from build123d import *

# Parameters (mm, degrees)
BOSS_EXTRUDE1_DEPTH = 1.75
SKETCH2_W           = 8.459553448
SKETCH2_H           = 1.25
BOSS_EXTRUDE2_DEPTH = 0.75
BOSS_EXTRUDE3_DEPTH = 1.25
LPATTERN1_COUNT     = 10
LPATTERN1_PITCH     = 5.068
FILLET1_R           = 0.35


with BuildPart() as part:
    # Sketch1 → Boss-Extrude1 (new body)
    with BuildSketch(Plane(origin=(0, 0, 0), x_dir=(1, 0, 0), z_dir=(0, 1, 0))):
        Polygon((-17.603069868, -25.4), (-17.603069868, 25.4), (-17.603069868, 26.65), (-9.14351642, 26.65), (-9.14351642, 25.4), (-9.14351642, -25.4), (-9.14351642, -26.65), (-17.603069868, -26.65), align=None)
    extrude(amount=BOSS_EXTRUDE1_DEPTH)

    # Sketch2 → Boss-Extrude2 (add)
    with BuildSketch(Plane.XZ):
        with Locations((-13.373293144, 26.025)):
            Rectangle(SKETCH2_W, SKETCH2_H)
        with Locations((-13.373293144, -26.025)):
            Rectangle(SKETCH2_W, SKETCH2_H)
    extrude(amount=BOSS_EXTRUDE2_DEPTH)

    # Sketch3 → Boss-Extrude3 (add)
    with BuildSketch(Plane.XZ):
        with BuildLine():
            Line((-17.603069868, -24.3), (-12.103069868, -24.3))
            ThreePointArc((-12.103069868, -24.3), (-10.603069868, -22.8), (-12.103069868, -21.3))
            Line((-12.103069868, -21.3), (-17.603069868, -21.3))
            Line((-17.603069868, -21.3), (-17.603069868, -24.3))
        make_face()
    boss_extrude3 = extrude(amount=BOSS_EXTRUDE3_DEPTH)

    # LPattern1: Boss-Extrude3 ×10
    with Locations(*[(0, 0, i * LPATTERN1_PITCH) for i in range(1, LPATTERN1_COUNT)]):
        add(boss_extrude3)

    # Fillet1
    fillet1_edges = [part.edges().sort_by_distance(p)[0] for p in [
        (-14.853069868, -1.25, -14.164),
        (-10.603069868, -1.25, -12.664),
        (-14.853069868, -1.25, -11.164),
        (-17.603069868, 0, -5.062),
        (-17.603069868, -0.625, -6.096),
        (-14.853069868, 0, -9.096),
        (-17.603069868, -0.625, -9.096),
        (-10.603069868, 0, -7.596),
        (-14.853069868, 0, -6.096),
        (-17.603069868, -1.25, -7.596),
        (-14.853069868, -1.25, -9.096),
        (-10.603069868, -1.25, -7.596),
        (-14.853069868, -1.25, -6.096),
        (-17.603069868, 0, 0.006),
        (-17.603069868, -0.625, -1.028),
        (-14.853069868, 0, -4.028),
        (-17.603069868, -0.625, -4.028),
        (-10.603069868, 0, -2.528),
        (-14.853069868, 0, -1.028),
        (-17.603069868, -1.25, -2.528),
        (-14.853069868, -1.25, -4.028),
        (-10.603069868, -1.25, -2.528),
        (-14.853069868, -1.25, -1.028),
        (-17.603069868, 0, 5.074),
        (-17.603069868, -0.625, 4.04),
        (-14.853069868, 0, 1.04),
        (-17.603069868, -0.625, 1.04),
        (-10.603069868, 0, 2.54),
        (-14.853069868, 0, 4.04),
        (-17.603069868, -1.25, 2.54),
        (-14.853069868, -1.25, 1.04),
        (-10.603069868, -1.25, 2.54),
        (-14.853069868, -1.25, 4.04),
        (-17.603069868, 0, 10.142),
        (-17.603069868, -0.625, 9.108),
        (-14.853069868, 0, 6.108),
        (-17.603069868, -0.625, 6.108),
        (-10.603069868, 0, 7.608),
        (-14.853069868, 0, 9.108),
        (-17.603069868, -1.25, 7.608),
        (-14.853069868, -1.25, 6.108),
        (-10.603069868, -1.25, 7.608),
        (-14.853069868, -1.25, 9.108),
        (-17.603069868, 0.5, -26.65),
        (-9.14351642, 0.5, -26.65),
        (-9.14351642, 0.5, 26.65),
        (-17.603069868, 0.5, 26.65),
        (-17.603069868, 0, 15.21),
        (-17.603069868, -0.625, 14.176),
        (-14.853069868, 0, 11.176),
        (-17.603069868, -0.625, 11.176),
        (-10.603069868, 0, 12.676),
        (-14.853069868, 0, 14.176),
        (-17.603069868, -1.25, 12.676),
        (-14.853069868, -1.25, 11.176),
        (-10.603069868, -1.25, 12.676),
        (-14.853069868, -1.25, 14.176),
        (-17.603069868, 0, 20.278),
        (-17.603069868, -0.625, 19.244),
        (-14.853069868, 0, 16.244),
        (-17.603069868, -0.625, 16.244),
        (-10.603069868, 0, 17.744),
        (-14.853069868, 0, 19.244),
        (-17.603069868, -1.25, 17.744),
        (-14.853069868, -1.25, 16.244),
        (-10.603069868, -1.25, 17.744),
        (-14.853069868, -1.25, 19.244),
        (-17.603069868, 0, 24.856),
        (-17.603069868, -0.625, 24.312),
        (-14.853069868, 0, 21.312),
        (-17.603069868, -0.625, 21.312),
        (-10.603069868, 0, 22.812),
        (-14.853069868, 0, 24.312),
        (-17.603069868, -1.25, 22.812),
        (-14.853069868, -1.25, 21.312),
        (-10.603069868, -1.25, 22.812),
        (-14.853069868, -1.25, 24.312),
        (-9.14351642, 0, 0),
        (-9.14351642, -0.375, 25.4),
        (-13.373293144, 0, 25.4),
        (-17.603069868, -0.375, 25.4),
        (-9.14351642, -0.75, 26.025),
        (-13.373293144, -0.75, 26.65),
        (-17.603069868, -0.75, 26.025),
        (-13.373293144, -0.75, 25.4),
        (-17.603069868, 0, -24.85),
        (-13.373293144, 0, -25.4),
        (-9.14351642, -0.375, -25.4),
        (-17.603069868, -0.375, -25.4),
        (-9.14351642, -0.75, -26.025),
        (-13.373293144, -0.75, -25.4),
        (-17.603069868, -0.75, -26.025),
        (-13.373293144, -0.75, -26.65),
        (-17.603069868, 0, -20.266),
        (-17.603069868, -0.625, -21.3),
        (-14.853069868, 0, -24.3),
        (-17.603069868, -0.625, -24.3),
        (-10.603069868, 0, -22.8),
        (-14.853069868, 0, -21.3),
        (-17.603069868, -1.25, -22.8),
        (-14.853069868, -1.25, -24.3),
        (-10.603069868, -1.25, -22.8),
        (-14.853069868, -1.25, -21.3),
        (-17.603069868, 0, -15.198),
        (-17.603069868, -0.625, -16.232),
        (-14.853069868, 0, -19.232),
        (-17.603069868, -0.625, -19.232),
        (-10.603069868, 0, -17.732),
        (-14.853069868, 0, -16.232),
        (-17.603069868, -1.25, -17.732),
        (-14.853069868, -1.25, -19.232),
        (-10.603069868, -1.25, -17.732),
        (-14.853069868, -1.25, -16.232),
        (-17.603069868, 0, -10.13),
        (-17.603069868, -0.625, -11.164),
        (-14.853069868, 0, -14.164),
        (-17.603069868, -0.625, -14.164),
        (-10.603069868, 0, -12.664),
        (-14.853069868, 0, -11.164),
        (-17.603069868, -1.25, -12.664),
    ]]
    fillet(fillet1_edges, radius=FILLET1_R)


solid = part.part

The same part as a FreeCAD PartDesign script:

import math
import FreeCAD as App
import Part
import Sketcher

V = App.Vector
Q = App.Units.Quantity


def edges_at(feature, points):
    """Names of the edges that pass closest to the given points."""
    edges = feature.Shape.Edges
    near = lambda p: min(range(len(edges)), key=lambda i: edges[i].distToShape(Part.Vertex(*p))[0])
    return sorted({f"Edge{near(p) + 1}" for p in points})


def add_polygon(sketch, points):
    """Adds a closed chain of lines whose ends are joined by coincident constraints."""
    first, n = sketch.GeometryCount, len(points)
    for a, b in zip(points, points[1:] + points[:1]):
        sketch.addGeometry(Part.LineSegment(App.Vector(*a, 0), App.Vector(*b, 0)), False)
    for i in range(n):
        sketch.addConstraint(Sketcher.Constraint("Coincident", first + i, 2, first + (i + 1) % n, 1))

doc = App.newDocument("Part")
body = doc.addObject("PartDesign::Body", "Body")

sketch1 = doc.addObject("Sketcher::SketchObject", "Sketch")
body.addObject(sketch1)
sketch1.AttachmentSupport = (doc.XZ_Plane, [""])
sketch1.MapMode = "FlatFace"
add_polygon(sketch1, [(-18, -27), (-18, 27), (-9, 27), (-9, -27)])
sketch1.addConstraint(Sketcher.Constraint("Vertical", 0))
sketch1.addConstraint(Sketcher.Constraint("Horizontal", 1))
sketch1.addConstraint(Sketcher.Constraint("Vertical", 2))
sketch1.addConstraint(Sketcher.Constraint("Horizontal", 3))
sketch1.addConstraint(Sketcher.Constraint("DistanceY", 0, 1, 0, 2, Q("53.3 mm")))
sketch1.addConstraint(Sketcher.Constraint("DistanceY", -1, 1, 0, 2, Q("26.65 mm")))
sketch1.addConstraint(Sketcher.Constraint("DistanceX", 1, 1, 1, 2, Q("8.459553 mm")))
sketch1.addConstraint(Sketcher.Constraint("DistanceX", 0, 2, -1, 1, Q("17.60307 mm")))
pad1 = doc.addObject("PartDesign::Pad", "Pad")
body.addObject(pad1)
pad1.Profile = sketch1
pad1.Length = 1.75
pad1.Reversed = True

sketch2 = doc.addObject("Sketcher::SketchObject", "Sketch001")
body.addObject(sketch2)
sketch2.AttachmentSupport = (doc.XZ_Plane, [""])
sketch2.MapMode = "FlatFace"
add_polygon(sketch2, [(-17.6, 26.6), (-17.6, 25.4), (-9.1, 25.4), (-9.1, 26.6)])
add_polygon(sketch2, [(-17.6, -25.4), (-17.6, -26.6), (-9.1, -26.6), (-9.1, -25.4)])
sketch2.addConstraint(Sketcher.Constraint("Vertical", 0))
sketch2.addConstraint(Sketcher.Constraint("Horizontal", 1))
sketch2.addConstraint(Sketcher.Constraint("Vertical", 2))
sketch2.addConstraint(Sketcher.Constraint("Horizontal", 3))
sketch2.addConstraint(Sketcher.Constraint("Vertical", 4))
sketch2.addConstraint(Sketcher.Constraint("Horizontal", 5))
sketch2.addConstraint(Sketcher.Constraint("Vertical", 6))
sketch2.addConstraint(Sketcher.Constraint("Horizontal", 7))
sketch2.addConstraint(Sketcher.Constraint("Symmetric", 3, 2, 4, 2, -1))
sketch2.addConstraint(Sketcher.Constraint("Symmetric", 1, 2, 6, 2, -1))
sketch2.addConstraint(Sketcher.Constraint("DistanceY", 0, 2, 0, 1, Q("1.25 mm")))
sketch2.addConstraint(Sketcher.Constraint("DistanceY", -1, 1, 0, 2, Q("25.4 mm")))
sketch2.addConstraint(Sketcher.Constraint("DistanceX", 1, 1, 1, 2, Q("8.459553 mm")))
sketch2.addConstraint(Sketcher.Constraint("DistanceX", 0, 2, -1, 1, Q("17.60307 mm")))
pad2 = doc.addObject("PartDesign::Pad", "Pad001")
body.addObject(pad2)
pad2.Profile = sketch2
pad2.Length = 0.75

sketch3 = doc.addObject("Sketcher::SketchObject", "Sketch002")
body.addObject(sketch3)
sketch3.AttachmentSupport = (doc.XZ_Plane, [""])
sketch3.MapMode = "FlatFace"
sketch3.addGeometry(Part.LineSegment(V(-17.6, -24.3, 0), V(-12.1, -24.3, 0)), False)
sketch3.addGeometry(Part.ArcOfCircle(Part.Circle(V(-12.1, -22.8, 0), V(0, 0, 1), 1.5), math.radians(-90), math.radians(90)), False)
sketch3.addGeometry(Part.LineSegment(V(-12.1, -21.3, 0), V(-17.6, -21.3, 0)), False)
sketch3.addGeometry(Part.LineSegment(V(-17.6, -21.3, 0), V(-17.6, -24.3, 0)), False)
sketch3.addConstraint(Sketcher.Constraint("Tangent", 0, 2, 1, 1))
sketch3.addConstraint(Sketcher.Constraint("Tangent", 1, 2, 2, 1))
sketch3.addConstraint(Sketcher.Constraint("Coincident", 2, 2, 3, 1))
sketch3.addConstraint(Sketcher.Constraint("Coincident", 3, 2, 0, 1))
sketch3.addConstraint(Sketcher.Constraint("Horizontal", 0))
sketch3.addConstraint(Sketcher.Constraint("Horizontal", 2))
sketch3.addConstraint(Sketcher.Constraint("Vertical", 3))
sketch3.addConstraint(Sketcher.Constraint("Radius", 1, Q("1.5 mm")))
sketch3.addConstraint(Sketcher.Constraint("DistanceX", 0, 1, 0, 2, Q("5.5 mm")))
sketch3.addConstraint(Sketcher.Constraint("DistanceY", 1, 3, -1, 1, Q("22.8 mm")))
sketch3.addConstraint(Sketcher.Constraint("DistanceX", 1, 3, -1, 1, Q("12.10307 mm")))
pad3 = doc.addObject("PartDesign::Pad", "Pad002")
body.addObject(pad3)
pad3.Profile = sketch3
pad3.Length = 1.25
doc.recompute()

linearpattern = doc.addObject("PartDesign::LinearPattern", "LinearPattern")
body.addObject(linearpattern)
linearpattern.Originals = [pad3]
linearpattern.Direction = (doc.Z_Axis, [""])
linearpattern.Mode = "offset"
linearpattern.Offset = 5.068
linearpattern.Occurrences = 10
body.Tip = linearpattern
doc.recompute()

fillet = doc.addObject("PartDesign::Fillet", "Fillet")
body.addObject(fillet)
fillet.Base = (linearpattern, edges_at(linearpattern, [
    (-14.853, -1.25, -14.164),
    (-10.603, -1.25, -12.664),
    (-14.853, -1.25, -11.164),
    (-17.603, 0, -5.062),
    (-17.603, -0.625, -6.096),
    (-14.853, 0, -9.096),
    (-17.603, -0.625, -9.096),
    (-10.603, 0, -7.596),
    (-14.853, 0, -6.096),
    (-17.603, -1.25, -7.596),
    (-14.853, -1.25, -9.096),
    (-10.603, -1.25, -7.596),
    (-14.853, -1.25, -6.096),
    (-17.603, 0, 0.006),
    (-17.603, -0.625, -1.028),
    (-14.853, 0, -4.028),
    (-17.603, -0.625, -4.028),
    (-10.603, 0, -2.528),
    (-14.853, 0, -1.028),
    (-17.603, -1.25, -2.528),
    (-14.853, -1.25, -4.028),
    (-10.603, -1.25, -2.528),
    (-14.853, -1.25, -1.028),
    (-17.603, 0, 5.074),
    (-17.603, -0.625, 4.04),
    (-14.853, 0, 1.04),
    (-17.603, -0.625, 1.04),
    (-10.603, 0, 2.54),
    (-14.853, 0, 4.04),
    (-17.603, -1.25, 2.54),
    (-14.853, -1.25, 1.04),
    (-10.603, -1.25, 2.54),
    (-14.853, -1.25, 4.04),
    (-17.603, 0, 10.142),
    (-17.603, -0.625, 9.108),
    (-14.853, 0, 6.108),
    (-17.603, -0.625, 6.108),
    (-10.603, 0, 7.608),
    (-14.853, 0, 9.108),
    (-17.603, -1.25, 7.608),
    (-14.853, -1.25, 6.108),
    (-10.603, -1.25, 7.608),
    (-14.853, -1.25, 9.108),
    (-17.603, 0.5, -26.65),
    (-9.144, 0.5, -26.65),
    (-9.144, 0.5, 26.65),
    (-17.603, 0.5, 26.65),
    (-17.603, 0, 15.21),
    (-17.603, -0.625, 14.176),
    (-14.853, 0, 11.176),
    (-17.603, -0.625, 11.176),
    (-10.603, 0, 12.676),
    (-14.853, 0, 14.176),
    (-17.603, -1.25, 12.676),
    (-14.853, -1.25, 11.176),
    (-10.603, -1.25, 12.676),
    (-14.853, -1.25, 14.176),
    (-17.603, 0, 20.278),
    (-17.603, -0.625, 19.244),
    (-14.853, 0, 16.244),
    (-17.603, -0.625, 16.244),
    (-10.603, 0, 17.744),
    (-14.853, 0, 19.244),
    (-17.603, -1.25, 17.744),
    (-14.853, -1.25, 16.244),
    (-10.603, -1.25, 17.744),
    (-14.853, -1.25, 19.244),
    (-17.603, 0, 24.856),
    (-17.603, -0.625, 24.312),
    (-14.853, 0, 21.312),
    (-17.603, -0.625, 21.312),
    (-10.603, 0, 22.812),
    (-14.853, 0, 24.312),
    (-17.603, -1.25, 22.812),
    (-14.853, -1.25, 21.312),
    (-10.603, -1.25, 22.812),
    (-14.853, -1.25, 24.312),
    (-9.144, 0, 0),
    (-9.144, -0.375, 25.4),
    (-13.373, 0, 25.4),
    (-17.603, -0.375, 25.4),
    (-9.144, -0.75, 26.025),
    (-13.373, -0.75, 26.65),
    (-17.603, -0.75, 26.025),
    (-13.373, -0.75, 25.4),
    (-17.603, 0, -24.85),
    (-13.373, 0, -25.4),
    (-9.144, -0.375, -25.4),
    (-17.603, -0.375, -25.4),
    (-9.144, -0.75, -26.025),
    (-13.373, -0.75, -25.4),
    (-17.603, -0.75, -26.025),
    (-13.373, -0.75, -26.65),
    (-17.603, 0, -20.266),
    (-17.603, -0.625, -21.3),
    (-14.853, 0, -24.3),
    (-17.603, -0.625, -24.3),
    (-10.603, 0, -22.8),
    (-14.853, 0, -21.3),
    (-17.603, -1.25, -22.8),
    (-14.853, -1.25, -24.3),
    (-10.603, -1.25, -22.8),
    (-14.853, -1.25, -21.3),
    (-17.603, 0, -15.198),
    (-17.603, -0.625, -16.232),
    (-14.853, 0, -19.232),
    (-17.603, -0.625, -19.232),
    (-10.603, 0, -17.732),
    (-14.853, 0, -16.232),
    (-17.603, -1.25, -17.732),
    (-14.853, -1.25, -19.232),
    (-10.603, -1.25, -17.732),
    (-14.853, -1.25, -16.232),
    (-17.603, 0, -10.13),
    (-17.603, -0.625, -11.164),
    (-14.853, 0, -14.164),
    (-17.603, -0.625, -14.164),
    (-10.603, 0, -12.664),
    (-14.853, 0, -11.164),
    (-17.603, -1.25, -12.664),
]))
fillet.Radius = 0.35

doc.recompute()
